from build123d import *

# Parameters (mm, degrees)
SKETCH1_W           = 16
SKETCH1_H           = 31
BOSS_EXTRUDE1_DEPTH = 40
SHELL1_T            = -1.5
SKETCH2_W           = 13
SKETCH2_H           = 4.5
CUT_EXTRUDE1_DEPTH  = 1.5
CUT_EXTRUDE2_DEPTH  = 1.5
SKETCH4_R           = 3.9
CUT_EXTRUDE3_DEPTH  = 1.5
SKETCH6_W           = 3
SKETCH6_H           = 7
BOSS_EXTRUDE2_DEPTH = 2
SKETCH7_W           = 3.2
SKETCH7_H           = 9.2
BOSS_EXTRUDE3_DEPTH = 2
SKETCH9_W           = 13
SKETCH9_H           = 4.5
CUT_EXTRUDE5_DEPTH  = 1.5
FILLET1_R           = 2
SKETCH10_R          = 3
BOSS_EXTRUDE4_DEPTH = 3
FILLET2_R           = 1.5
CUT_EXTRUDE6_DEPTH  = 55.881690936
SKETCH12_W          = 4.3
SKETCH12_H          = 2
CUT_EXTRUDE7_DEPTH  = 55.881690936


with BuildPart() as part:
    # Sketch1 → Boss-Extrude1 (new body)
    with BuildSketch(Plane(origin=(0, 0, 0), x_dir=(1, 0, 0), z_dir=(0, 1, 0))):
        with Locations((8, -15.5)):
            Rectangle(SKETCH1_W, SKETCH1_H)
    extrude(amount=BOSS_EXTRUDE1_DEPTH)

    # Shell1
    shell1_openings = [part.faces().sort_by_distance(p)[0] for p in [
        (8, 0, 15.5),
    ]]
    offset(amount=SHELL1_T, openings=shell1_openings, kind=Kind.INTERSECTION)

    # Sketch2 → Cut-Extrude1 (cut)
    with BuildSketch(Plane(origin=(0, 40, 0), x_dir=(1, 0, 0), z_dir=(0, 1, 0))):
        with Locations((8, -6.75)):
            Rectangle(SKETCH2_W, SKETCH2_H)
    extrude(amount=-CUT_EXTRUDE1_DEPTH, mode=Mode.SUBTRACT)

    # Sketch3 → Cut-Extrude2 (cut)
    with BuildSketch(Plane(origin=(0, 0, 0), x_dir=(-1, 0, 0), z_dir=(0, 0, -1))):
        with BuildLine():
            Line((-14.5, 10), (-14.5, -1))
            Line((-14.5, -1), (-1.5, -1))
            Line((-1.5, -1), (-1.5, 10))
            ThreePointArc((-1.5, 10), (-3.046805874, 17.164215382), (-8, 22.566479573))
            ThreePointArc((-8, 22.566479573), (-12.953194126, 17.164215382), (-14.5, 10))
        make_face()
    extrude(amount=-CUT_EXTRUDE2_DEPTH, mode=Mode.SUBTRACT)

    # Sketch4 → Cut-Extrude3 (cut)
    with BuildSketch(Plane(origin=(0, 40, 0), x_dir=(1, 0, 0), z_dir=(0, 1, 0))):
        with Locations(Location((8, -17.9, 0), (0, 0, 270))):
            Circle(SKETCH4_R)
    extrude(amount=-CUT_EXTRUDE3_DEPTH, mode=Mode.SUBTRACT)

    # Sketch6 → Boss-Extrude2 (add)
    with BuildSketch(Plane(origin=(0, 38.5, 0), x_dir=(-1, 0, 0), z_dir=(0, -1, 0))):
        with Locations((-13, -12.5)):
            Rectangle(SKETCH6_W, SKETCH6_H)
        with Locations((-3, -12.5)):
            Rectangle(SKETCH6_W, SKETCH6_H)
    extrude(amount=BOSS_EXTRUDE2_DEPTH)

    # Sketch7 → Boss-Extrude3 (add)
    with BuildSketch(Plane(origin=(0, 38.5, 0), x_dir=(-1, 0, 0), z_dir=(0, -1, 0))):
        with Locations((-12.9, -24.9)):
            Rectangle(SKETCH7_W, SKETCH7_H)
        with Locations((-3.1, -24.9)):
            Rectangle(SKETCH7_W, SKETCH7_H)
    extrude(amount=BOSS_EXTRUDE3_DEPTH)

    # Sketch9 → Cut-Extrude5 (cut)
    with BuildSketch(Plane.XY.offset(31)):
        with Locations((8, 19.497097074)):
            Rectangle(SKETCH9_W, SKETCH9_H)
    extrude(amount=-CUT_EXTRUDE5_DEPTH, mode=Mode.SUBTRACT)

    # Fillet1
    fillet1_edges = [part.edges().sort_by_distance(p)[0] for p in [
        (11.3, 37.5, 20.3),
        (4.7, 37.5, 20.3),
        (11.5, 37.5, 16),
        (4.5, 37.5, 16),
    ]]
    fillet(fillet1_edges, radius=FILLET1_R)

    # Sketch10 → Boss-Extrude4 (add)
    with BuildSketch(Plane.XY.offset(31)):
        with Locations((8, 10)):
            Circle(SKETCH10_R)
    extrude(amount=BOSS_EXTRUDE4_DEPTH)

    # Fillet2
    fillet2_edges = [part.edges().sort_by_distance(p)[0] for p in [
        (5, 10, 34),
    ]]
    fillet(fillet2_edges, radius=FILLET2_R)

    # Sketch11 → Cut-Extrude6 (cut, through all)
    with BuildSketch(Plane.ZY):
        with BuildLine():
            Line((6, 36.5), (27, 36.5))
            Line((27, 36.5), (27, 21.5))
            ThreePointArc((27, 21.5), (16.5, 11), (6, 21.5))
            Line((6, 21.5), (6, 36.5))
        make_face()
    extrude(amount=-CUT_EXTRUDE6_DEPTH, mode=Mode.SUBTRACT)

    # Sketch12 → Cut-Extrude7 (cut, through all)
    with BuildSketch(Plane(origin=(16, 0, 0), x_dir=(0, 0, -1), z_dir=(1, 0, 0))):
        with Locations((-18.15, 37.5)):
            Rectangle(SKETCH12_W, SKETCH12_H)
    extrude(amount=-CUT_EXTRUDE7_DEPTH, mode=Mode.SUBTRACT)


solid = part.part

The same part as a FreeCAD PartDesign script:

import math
import FreeCAD as App
import Part
import Sketcher


def edges_at(feature, points):
    """Names of the edges that pass closest to the given points."""
    edges = feature.Shape.Edges
    near = lambda p: min(range(len(edges)), key=lambda i: edges[i].distToShape(Part.Vertex(*p))[0])
    return sorted({f"Edge{near(p) + 1}" for p in points})


def faces_at(feature, points):
    """Names of the faces that lie closest to the given points."""
    faces = feature.Shape.Faces
    near = lambda p: min(range(len(faces)), key=lambda i: faces[i].distToShape(Part.Vertex(*p))[0])
    return sorted({f"Face{near(p) + 1}" for p in points})

doc = App.newDocument("Part")
body = doc.addObject("PartDesign::Body", "Body")

# Sketch on XZ plane
sketch1 = body.newObject("Sketcher::SketchObject", "Sketch")
sketch1.AttachmentSupport = (doc.getObject("XZ_Plane"), [""])
sketch1.MapMode = "FlatFace"
sketch1.addGeometry([
    Part.LineSegment(App.Vector(0, 0, 0), App.Vector(0, 31, 0)),
    Part.LineSegment(App.Vector(0, 31, 0), App.Vector(16, 31, 0)),
    Part.LineSegment(App.Vector(16, 31, 0), App.Vector(16, 0, 0)),
    Part.LineSegment(App.Vector(16, 0, 0), App.Vector(0, 0, 0)),
], False)
sketch1.addConstraint([
    Sketcher.Constraint("Coincident", 0, 2, 1, 1),
    Sketcher.Constraint("Coincident", 1, 2, 2, 1),
    Sketcher.Constraint("Coincident", 2, 2, 3, 1),
    Sketcher.Constraint("Coincident", 3, 2, 0, 1),
    Sketcher.Constraint("Vertical", 0),
    Sketcher.Constraint("Horizontal", 1),
    Sketcher.Constraint("Vertical", 2),
    Sketcher.Constraint("Horizontal", 3),
    Sketcher.Constraint("Coincident", 3, 2, -1, 1),
    Sketcher.Constraint("DistanceX", 1, 1, 1, 2, 16.0),
    Sketcher.Constraint("DistanceY", 0, 1, 0, 2, 31.0),
])
pad1 = body.newObject("PartDesign::Pad", "Pad")
pad1.Profile = sketch1
pad1.Length = 40
pad1.Reversed = True
doc.recompute()

thickness = body.newObject("PartDesign::Thickness", "Thickness")
thickness.Base = (pad1, faces_at(pad1, [(8, 0, 15.5)]))
thickness.Value = 1.5
thickness.Reversed = True
thickness.Join = "Intersection"

# Sketch on XZ plane
sketch2 = body.newObject("Sketcher::SketchObject", "Sketch001")
sketch2.AttachmentSupport = (doc.getObject("XZ_Plane"), [""])
sketch2.MapMode = "FlatFace"
sketch2.AttachmentOffset = App.Placement(App.Vector(0, 0, -40), App.Rotation())
sketch2.addGeometry([
    Part.LineSegment(App.Vector(1.5, 4.5, 0), App.Vector(1.5, 9, 0)),
    Part.LineSegment(App.Vector(1.5, 9, 0), App.Vector(14.5, 9, 0)),
    Part.LineSegment(App.Vector(14.5, 9, 0), App.Vector(14.5, 4.5, 0)),
    Part.LineSegment(App.Vector(14.5, 4.5, 0), App.Vector(1.5, 4.5, 0)),
], False)
sketch2.addConstraint([
    Sketcher.Constraint("Coincident", 0, 2, 1, 1),
    Sketcher.Constraint("Coincident", 1, 2, 2, 1),
    Sketcher.Constraint("Coincident", 2, 2, 3, 1),
    Sketcher.Constraint("Coincident", 3, 2, 0, 1),
    Sketcher.Constraint("Vertical", 0),
    Sketcher.Constraint("Horizontal", 1),
    Sketcher.Constraint("Vertical", 2),
    Sketcher.Constraint("Horizontal", 3),
    Sketcher.Constraint("DistanceX", 1, 1, 1, 2, 13.0),
    Sketcher.Constraint("DistanceY", 0, 1, 0, 2, 4.5),
    Sketcher.Constraint("DistanceY", -1, 1, 0, 2, 9.0),
    Sketcher.Constraint("DistanceX", -1, 1, 0, 2, 1.5),
])
pocket1 = body.newObject("PartDesign::Pocket", "Pocket")
pocket1.Profile = sketch2
pocket1.Length = 1.5
pocket1.Reversed = True

# Sketch on XY plane
sketch3 = body.newObject("Sketcher::SketchObject", "Sketch002")
sketch3.AttachmentSupport = (doc.getObject("XY_Plane"), [""])
sketch3.MapMode = "FlatFace"
sketch3.addGeometry([
    Part.LineSegment(App.Vector(14.5, 10, 0), App.Vector(14.5, -1, 0)),  # 0
    Part.LineSegment(App.Vector(14.5, -1, 0), App.Vector(1.5, -1, 0)),  # 1
    Part.LineSegment(App.Vector(1.5, -1, 0), App.Vector(1.5, 10, 0)),  # 2
    Part.ArcOfCircle(Part.Circle(App.Vector(15.488128, 10.728953, 0), App.Vector(0, 0, 1), 14.007109), math.radians(122.316437), math.radians(182.983115)),  # 3
    Part.ArcOfCircle(Part.Circle(App.Vector(0.511872, 10.728953, 0), App.Vector(0, 0, 1), 14.007109), math.radians(-2.983115), math.radians(57.683563)),  # 4
], False)
sketch3.addConstraint([
    Sketcher.Constraint("Coincident", 0, 2, 1, 1),
    Sketcher.Constraint("Coincident", 1, 2, 2, 1),
    Sketcher.Constraint("Coincident", 2, 2, 3, 2),
    Sketcher.Constraint("Coincident", 3, 1, 4, 2),
    Sketcher.Constraint("Coincident", 4, 1, 0, 1),
    Sketcher.Constraint("Vertical", 0),
    Sketcher.Constraint("Horizontal", 1),
    Sketcher.Constraint("Vertical", 2),
    Sketcher.Constraint("Equal", 3, 4),
    Sketcher.Constraint("Horizontal", 3, 3, 4, 3),
    Sketcher.Constraint("Horizontal", 2, 2, 4, 1),
    Sketcher.Constraint("DistanceX", 1, 2, 1, 1, 13.0),
    Sketcher.Constraint("DistanceY", 0, 2, 0, 1, 11.0),
    Sketcher.Constraint("DistanceY", 0, 2, -1, 1, 1.0),
    Sketcher.Constraint("DistanceX", -1, 1, 3, 1, 8.0),
    Sketcher.Constraint("Radius", 3, 14.007109),
    Sketcher.Constraint("DistanceY", -1, 1, 3, 1, 22.56648),
])
pocket2 = body.newObject("PartDesign::Pocket", "Pocket001")
pocket2.Profile = sketch3
pocket2.Length = 1.5
pocket2.Reversed = True

# Sketch on XZ plane
sketch4 = body.newObject("Sketcher::SketchObject", "Sketch003")
sketch4.AttachmentSupport = (doc.getObject("XZ_Plane"), [""])
sketch4.MapMode = "FlatFace"
sketch4.AttachmentOffset = App.Placement(App.Vector(0, 0, -40), App.Rotation())
sketch4.addGeometry(Part.Circle(App.Vector(8, 17.9, 0), App.Vector(0, 0, 1), 3.9), False)
sketch4.addConstraint([
    Sketcher.Constraint("Diameter", 0, 7.8),
    Sketcher.Constraint("DistanceX", -1, 1, 0, 3, 8.0),
    Sketcher.Constraint("DistanceY", -1, 1, 0, 3, 17.9),
])
pocket3 = body.newObject("PartDesign::Pocket", "Pocket002")
pocket3.Profile = sketch4
pocket3.Length = 1.5
pocket3.Reversed = True

# Sketch on XZ plane
sketch5 = body.newObject("Sketcher::SketchObject", "Sketch004")
sketch5.AttachmentSupport = (doc.getObject("XZ_Plane"), [""])
sketch5.MapMode = "FlatFace"
sketch5.AttachmentOffset = App.Placement(App.Vector(0, 0, -38.5), App.Rotation())
sketch5.addGeometry([
    Part.LineSegment(App.Vector(14.5, 9, 0), App.Vector(14.5, 16, 0)),  # 0
    Part.LineSegment(App.Vector(14.5, 16, 0), App.Vector(11.5, 16, 0)),  # 1
    Part.LineSegment(App.Vector(11.5, 16, 0), App.Vector(11.5, 9, 0)),  # 2
    Part.LineSegment(App.Vector(11.5, 9, 0), App.Vector(14.5, 9, 0)),  # 3
    Part.LineSegment(App.Vector(4.5, 9, 0), App.Vector(4.5, 16, 0)),  # 4
    Part.LineSegment(App.Vector(4.5, 16, 0), App.Vector(1.5, 16, 0)),  # 5
    Part.LineSegment(App.Vector(1.5, 16, 0), App.Vector(1.5, 9, 0)),  # 6
    Part.LineSegment(App.Vector(1.5, 9, 0), App.Vector(4.5, 9, 0)),  # 7
], False)
sketch5.addConstraint([
    Sketcher.Constraint("Coincident", 0, 2, 1, 1),
    Sketcher.Constraint("Coincident", 1, 2, 2, 1),
    Sketcher.Constraint("Coincident", 2, 2, 3, 1),
    Sketcher.Constraint("Coincident", 3, 2, 0, 1),
    Sketcher.Constraint("Coincident", 4, 2, 5, 1),
    Sketcher.Constraint("Coincident", 5, 2, 6, 1),
    Sketcher.Constraint("Coincident", 6, 2, 7, 1),
    Sketcher.Constraint("Coincident", 7, 2, 4, 1),
    Sketcher.Constraint("Vertical", 0),
    Sketcher.Constraint("Horizontal", 1),
    Sketcher.Constraint("Vertical", 2),
    Sketcher.Constraint("Horizontal", 3),
    Sketcher.Constraint("Vertical", 4),
    Sketcher.Constraint("Horizontal", 5),
    Sketcher.Constraint("Vertical", 6),
    Sketcher.Constraint("Horizontal", 7),
    Sketcher.Constraint("Horizontal", 1, 2, 4, 2),
    Sketcher.Constraint("Horizontal", 3, 2, 6, 2),
    Sketcher.Constraint("Equal", 3, 5),
    Sketcher.Constraint("DistanceX", 1, 2, 1, 1, 3.0),
    Sketcher.Constraint("DistanceY", 0, 1, 0, 2, 7.0),
    Sketcher.Constraint("DistanceY", -1, 1, 0, 2, 16.0),
    Sketcher.Constraint("DistanceX", 4, 2, 1, 2, 7.0),
    Sketcher.Constraint("DistanceX", -1, 1, 0, 2, 14.5),
])
pad2 = body.newObject("PartDesign::Pad", "Pad001")
pad2.Profile = sketch5
pad2.Length = 2

# Sketch on XZ plane
sketch6 = body.newObject("Sketcher::SketchObject", "Sketch005")
sketch6.AttachmentSupport = (doc.getObject("XZ_Plane"), [""])
sketch6.MapMode = "FlatFace"
sketch6.AttachmentOffset = App.Placement(App.Vector(0, 0, -38.5), App.Rotation())
sketch6.addGeometry([
    Part.LineSegment(App.Vector(14.5, 20.3, 0), App.Vector(14.5, 29.5, 0)),  # 0
    Part.LineSegment(App.Vector(14.5, 29.5, 0), App.Vector(11.3, 29.5, 0)),  # 1
    Part.LineSegment(App.Vector(11.3, 29.5, 0), App.Vector(11.3, 20.3, 0)),  # 2
    Part.LineSegment(App.Vector(11.3, 20.3, 0), App.Vector(14.5, 20.3, 0)),  # 3
    Part.LineSegment(App.Vector(4.7, 20.3, 0), App.Vector(4.7, 29.5, 0)),  # 4
    Part.LineSegment(App.Vector(4.7, 29.5, 0), App.Vector(1.5, 29.5, 0)),  # 5
    Part.LineSegment(App.Vector(1.5, 29.5, 0), App.Vector(1.5, 20.3, 0)),  # 6
    Part.LineSegment(App.Vector(1.5, 20.3, 0), App.Vector(4.7, 20.3, 0)),  # 7
], False)
sketch6.addConstraint([
    Sketcher.Constraint("Coincident", 0, 2, 1, 1),
    Sketcher.Constraint("Coincident", 1, 2, 2, 1),
    Sketcher.Constraint("Coincident", 2, 2, 3, 1),
    Sketcher.Constraint("Coincident", 3, 2, 0, 1),
    Sketcher.Constraint("Coincident", 4, 2, 5, 1),
    Sketcher.Constraint("Coincident", 5, 2, 6, 1),
    Sketcher.Constraint("Coincident", 6, 2, 7, 1),
    Sketcher.Constraint("Coincident", 7, 2, 4, 1),
    Sketcher.Constraint("Vertical", 0),
    Sketcher.Constraint("Horizontal", 1),
    Sketcher.Constraint("Vertical", 2),
    Sketcher.Constraint("Horizontal", 3),
    Sketcher.Constraint("Vertical", 4),
    Sketcher.Constraint("Horizontal", 5),
    Sketcher.Constraint("Vertical", 6),
    Sketcher.Constraint("Horizontal", 7),
    Sketcher.Constraint("Horizontal", 1, 2, 4, 2),
    Sketcher.Constraint("Horizontal", 3, 2, 6, 2),
    Sketcher.Constraint("Equal", 3, 5),
    Sketcher.Constraint("DistanceX", 1, 2, 1, 1, 3.2),
    Sketcher.Constraint("DistanceY", 0, 1, 0, 2, 9.2),
    Sketcher.Constraint("DistanceX", 5, 2, 0, 2, 13.0),
    Sketcher.Constraint("DistanceX", -1, 1, 0, 2, 14.5),
    Sketcher.Constraint("DistanceY", -1, 1, 0, 2, 29.5),
])
pad3 = body.newObject("PartDesign::Pad", "Pad002")
pad3.Profile = sketch6
pad3.Length = 2

# Sketch on XY plane
sketch7 = body.newObject("Sketcher::SketchObject", "Sketch006")
sketch7.AttachmentSupport = (doc.getObject("XY_Plane"), [""])
sketch7.MapMode = "FlatFace"
sketch7.AttachmentOffset = App.Placement(App.Vector(0, 0, 31), App.Rotation())
sketch7.addGeometry([
    Part.LineSegment(App.Vector(1.5, 21.747097, 0), App.Vector(1.5, 17.247097, 0)),
    Part.LineSegment(App.Vector(1.5, 17.247097, 0), App.Vector(14.5, 17.247097, 0)),
    Part.LineSegment(App.Vector(14.5, 17.247097, 0), App.Vector(14.5, 21.747097, 0)),
    Part.LineSegment(App.Vector(14.5, 21.747097, 0), App.Vector(1.5, 21.747097, 0)),
], False)
sketch7.addConstraint([
    Sketcher.Constraint("Coincident", 0, 2, 1, 1),
    Sketcher.Constraint("Coincident", 1, 2, 2, 1),
    Sketcher.Constraint("Coincident", 2, 2, 3, 1),
    Sketcher.Constraint("Coincident", 3, 2, 0, 1),
    Sketcher.Constraint("Vertical", 0),
    Sketcher.Constraint("Horizontal", 1),
    Sketcher.Constraint("Vertical", 2),
    Sketcher.Constraint("Horizontal", 3),
    Sketcher.Constraint("DistanceX", 1, 1, 1, 2, 13.0),
    Sketcher.Constraint("DistanceY", 0, 2, 0, 1, 4.5),
    Sketcher.Constraint("DistanceX", -1, 1, 0, 2, 1.5),
    Sketcher.Constraint("DistanceY", -1, 1, 0, 2, 17.247097),
])
pocket4 = body.newObject("PartDesign::Pocket", "Pocket003")
pocket4.Profile = sketch7
pocket4.Length = 1.5
doc.recompute()

fillet = body.newObject("PartDesign::Fillet", "Fillet")
fillet.Base = (pocket4, edges_at(pocket4, [
    (11.3, 37.5, 20.3),
    (4.7, 37.5, 20.3),
    (11.5, 37.5, 16),
    (4.5, 37.5, 16),
]))
fillet.Radius = 2

# Sketch on XY plane
sketch8 = body.newObject("Sketcher::SketchObject", "Sketch007")
sketch8.AttachmentSupport = (doc.getObject("XY_Plane"), [""])
sketch8.MapMode = "FlatFace"
sketch8.AttachmentOffset = App.Placement(App.Vector(0, 0, 31), App.Rotation())
sketch8.addGeometry(Part.Circle(App.Vector(8, 10, 0), App.Vector(0, 0, 1), 3), False)
sketch8.addConstraint([
    Sketcher.Constraint("Diameter", 0, 6.0),
    Sketcher.Constraint("DistanceX", -1, 1, 0, 3, 8.0),
    Sketcher.Constraint("DistanceY", -1, 1, 0, 3, 10.0),
])
pad4 = body.newObject("PartDesign::Pad", "Pad003")
pad4.Profile = sketch8
pad4.Length = 3
doc.recompute()

fillet2 = body.newObject("PartDesign::Fillet", "Fillet001")
fillet2.Base = (pad4, edges_at(pad4, [(5, 10, 34)]))
fillet2.Radius = 1.5

# Sketch on YZ plane
sketch9 = body.newObject("Sketcher::SketchObject", "Sketch008")
sketch9.AttachmentSupport = (doc.getObject("YZ_Plane"), [""])
sketch9.MapMode = "FlatFace"
sketch9.addGeometry([
    Part.LineSegment(App.Vector(36.5, 27, 0), App.Vector(36.5, 6, 0)),
    Part.LineSegment(App.Vector(36.5, 6, 0), App.Vector(21.5, 6, 0)),
    Part.ArcOfCircle(Part.Circle(App.Vector(21.5, 16.5, 0), App.Vector(0, 0, 1), 10.5), math.radians(90), math.radians(270)),
    Part.LineSegment(App.Vector(21.5, 27, 0), App.Vector(36.5, 27, 0)),
], False)
sketch9.addConstraint([
    Sketcher.Constraint("Coincident", 0, 2, 1, 1),
    Sketcher.Constraint("Tangent", 1, 2, 2, 2),
    Sketcher.Constraint("Tangent", 2, 1, 3, 1),
    Sketcher.Constraint("Coincident", 3, 2, 0, 1),
    Sketcher.Constraint("Vertical", 0),
    Sketcher.Constraint("Horizontal", 1),
    Sketcher.Constraint("Horizontal", 3),
    Sketcher.Constraint("Radius", 2, 10.5),
    Sketcher.Constraint("DistanceX", 1, 2, 1, 1, 15.0),
    Sketcher.Constraint("DistanceY", -1, 1, 0, 2, 6.0),
    Sketcher.Constraint("DistanceX", -1, 1, 2, 3, 21.5),
])
pocket5 = body.newObject("PartDesign::Pocket", "Pocket004")
pocket5.Profile = sketch9
pocket5.Type = "ThroughAll"
pocket5.Reversed = True

# Sketch on YZ plane
sketch10 = body.newObject("Sketcher::SketchObject", "Sketch009")
sketch10.AttachmentSupport = (doc.getObject("YZ_Plane"), [""])
sketch10.MapMode = "FlatFace"
sketch10.AttachmentOffset = App.Placement(App.Vector(0, 0, 16), App.Rotation())
sketch10.addGeometry([
    Part.LineSegment(App.Vector(38.5, 20.3, 0), App.Vector(36.5, 20.3, 0)),
    Part.LineSegment(App.Vector(36.5, 20.3, 0), App.Vector(36.5, 16, 0)),
    Part.LineSegment(App.Vector(36.5, 16, 0), App.Vector(38.5, 16, 0)),
    Part.LineSegment(App.Vector(38.5, 16, 0), App.Vector(38.5, 20.3, 0)),
], False)
sketch10.addConstraint([
    Sketcher.Constraint("Coincident", 0, 2, 1, 1),
    Sketcher.Constraint("Coincident", 1, 2, 2, 1),
    Sketcher.Constraint("Coincident", 2, 2, 3, 1),
    Sketcher.Constraint("Coincident", 3, 2, 0, 1),
    Sketcher.Constraint("Horizontal", 0),
    Sketcher.Constraint("Vertical", 1),
    Sketcher.Constraint("Horizontal", 2),
    Sketcher.Constraint("Vertical", 3),
    Sketcher.Constraint("DistanceX", 0, 2, 0, 1, 2.0),
    Sketcher.Constraint("DistanceY", 1, 2, 1, 1, 4.3),
    Sketcher.Constraint("DistanceY", -1, 1, 1, 2, 16.0),
    Sketcher.Constraint("DistanceX", -1, 1, 0, 2, 36.5),
])
pocket6 = body.newObject("PartDesign::Pocket", "Pocket005")
pocket6.Profile = sketch10
pocket6.Type = "ThroughAll"

doc.recompute()
